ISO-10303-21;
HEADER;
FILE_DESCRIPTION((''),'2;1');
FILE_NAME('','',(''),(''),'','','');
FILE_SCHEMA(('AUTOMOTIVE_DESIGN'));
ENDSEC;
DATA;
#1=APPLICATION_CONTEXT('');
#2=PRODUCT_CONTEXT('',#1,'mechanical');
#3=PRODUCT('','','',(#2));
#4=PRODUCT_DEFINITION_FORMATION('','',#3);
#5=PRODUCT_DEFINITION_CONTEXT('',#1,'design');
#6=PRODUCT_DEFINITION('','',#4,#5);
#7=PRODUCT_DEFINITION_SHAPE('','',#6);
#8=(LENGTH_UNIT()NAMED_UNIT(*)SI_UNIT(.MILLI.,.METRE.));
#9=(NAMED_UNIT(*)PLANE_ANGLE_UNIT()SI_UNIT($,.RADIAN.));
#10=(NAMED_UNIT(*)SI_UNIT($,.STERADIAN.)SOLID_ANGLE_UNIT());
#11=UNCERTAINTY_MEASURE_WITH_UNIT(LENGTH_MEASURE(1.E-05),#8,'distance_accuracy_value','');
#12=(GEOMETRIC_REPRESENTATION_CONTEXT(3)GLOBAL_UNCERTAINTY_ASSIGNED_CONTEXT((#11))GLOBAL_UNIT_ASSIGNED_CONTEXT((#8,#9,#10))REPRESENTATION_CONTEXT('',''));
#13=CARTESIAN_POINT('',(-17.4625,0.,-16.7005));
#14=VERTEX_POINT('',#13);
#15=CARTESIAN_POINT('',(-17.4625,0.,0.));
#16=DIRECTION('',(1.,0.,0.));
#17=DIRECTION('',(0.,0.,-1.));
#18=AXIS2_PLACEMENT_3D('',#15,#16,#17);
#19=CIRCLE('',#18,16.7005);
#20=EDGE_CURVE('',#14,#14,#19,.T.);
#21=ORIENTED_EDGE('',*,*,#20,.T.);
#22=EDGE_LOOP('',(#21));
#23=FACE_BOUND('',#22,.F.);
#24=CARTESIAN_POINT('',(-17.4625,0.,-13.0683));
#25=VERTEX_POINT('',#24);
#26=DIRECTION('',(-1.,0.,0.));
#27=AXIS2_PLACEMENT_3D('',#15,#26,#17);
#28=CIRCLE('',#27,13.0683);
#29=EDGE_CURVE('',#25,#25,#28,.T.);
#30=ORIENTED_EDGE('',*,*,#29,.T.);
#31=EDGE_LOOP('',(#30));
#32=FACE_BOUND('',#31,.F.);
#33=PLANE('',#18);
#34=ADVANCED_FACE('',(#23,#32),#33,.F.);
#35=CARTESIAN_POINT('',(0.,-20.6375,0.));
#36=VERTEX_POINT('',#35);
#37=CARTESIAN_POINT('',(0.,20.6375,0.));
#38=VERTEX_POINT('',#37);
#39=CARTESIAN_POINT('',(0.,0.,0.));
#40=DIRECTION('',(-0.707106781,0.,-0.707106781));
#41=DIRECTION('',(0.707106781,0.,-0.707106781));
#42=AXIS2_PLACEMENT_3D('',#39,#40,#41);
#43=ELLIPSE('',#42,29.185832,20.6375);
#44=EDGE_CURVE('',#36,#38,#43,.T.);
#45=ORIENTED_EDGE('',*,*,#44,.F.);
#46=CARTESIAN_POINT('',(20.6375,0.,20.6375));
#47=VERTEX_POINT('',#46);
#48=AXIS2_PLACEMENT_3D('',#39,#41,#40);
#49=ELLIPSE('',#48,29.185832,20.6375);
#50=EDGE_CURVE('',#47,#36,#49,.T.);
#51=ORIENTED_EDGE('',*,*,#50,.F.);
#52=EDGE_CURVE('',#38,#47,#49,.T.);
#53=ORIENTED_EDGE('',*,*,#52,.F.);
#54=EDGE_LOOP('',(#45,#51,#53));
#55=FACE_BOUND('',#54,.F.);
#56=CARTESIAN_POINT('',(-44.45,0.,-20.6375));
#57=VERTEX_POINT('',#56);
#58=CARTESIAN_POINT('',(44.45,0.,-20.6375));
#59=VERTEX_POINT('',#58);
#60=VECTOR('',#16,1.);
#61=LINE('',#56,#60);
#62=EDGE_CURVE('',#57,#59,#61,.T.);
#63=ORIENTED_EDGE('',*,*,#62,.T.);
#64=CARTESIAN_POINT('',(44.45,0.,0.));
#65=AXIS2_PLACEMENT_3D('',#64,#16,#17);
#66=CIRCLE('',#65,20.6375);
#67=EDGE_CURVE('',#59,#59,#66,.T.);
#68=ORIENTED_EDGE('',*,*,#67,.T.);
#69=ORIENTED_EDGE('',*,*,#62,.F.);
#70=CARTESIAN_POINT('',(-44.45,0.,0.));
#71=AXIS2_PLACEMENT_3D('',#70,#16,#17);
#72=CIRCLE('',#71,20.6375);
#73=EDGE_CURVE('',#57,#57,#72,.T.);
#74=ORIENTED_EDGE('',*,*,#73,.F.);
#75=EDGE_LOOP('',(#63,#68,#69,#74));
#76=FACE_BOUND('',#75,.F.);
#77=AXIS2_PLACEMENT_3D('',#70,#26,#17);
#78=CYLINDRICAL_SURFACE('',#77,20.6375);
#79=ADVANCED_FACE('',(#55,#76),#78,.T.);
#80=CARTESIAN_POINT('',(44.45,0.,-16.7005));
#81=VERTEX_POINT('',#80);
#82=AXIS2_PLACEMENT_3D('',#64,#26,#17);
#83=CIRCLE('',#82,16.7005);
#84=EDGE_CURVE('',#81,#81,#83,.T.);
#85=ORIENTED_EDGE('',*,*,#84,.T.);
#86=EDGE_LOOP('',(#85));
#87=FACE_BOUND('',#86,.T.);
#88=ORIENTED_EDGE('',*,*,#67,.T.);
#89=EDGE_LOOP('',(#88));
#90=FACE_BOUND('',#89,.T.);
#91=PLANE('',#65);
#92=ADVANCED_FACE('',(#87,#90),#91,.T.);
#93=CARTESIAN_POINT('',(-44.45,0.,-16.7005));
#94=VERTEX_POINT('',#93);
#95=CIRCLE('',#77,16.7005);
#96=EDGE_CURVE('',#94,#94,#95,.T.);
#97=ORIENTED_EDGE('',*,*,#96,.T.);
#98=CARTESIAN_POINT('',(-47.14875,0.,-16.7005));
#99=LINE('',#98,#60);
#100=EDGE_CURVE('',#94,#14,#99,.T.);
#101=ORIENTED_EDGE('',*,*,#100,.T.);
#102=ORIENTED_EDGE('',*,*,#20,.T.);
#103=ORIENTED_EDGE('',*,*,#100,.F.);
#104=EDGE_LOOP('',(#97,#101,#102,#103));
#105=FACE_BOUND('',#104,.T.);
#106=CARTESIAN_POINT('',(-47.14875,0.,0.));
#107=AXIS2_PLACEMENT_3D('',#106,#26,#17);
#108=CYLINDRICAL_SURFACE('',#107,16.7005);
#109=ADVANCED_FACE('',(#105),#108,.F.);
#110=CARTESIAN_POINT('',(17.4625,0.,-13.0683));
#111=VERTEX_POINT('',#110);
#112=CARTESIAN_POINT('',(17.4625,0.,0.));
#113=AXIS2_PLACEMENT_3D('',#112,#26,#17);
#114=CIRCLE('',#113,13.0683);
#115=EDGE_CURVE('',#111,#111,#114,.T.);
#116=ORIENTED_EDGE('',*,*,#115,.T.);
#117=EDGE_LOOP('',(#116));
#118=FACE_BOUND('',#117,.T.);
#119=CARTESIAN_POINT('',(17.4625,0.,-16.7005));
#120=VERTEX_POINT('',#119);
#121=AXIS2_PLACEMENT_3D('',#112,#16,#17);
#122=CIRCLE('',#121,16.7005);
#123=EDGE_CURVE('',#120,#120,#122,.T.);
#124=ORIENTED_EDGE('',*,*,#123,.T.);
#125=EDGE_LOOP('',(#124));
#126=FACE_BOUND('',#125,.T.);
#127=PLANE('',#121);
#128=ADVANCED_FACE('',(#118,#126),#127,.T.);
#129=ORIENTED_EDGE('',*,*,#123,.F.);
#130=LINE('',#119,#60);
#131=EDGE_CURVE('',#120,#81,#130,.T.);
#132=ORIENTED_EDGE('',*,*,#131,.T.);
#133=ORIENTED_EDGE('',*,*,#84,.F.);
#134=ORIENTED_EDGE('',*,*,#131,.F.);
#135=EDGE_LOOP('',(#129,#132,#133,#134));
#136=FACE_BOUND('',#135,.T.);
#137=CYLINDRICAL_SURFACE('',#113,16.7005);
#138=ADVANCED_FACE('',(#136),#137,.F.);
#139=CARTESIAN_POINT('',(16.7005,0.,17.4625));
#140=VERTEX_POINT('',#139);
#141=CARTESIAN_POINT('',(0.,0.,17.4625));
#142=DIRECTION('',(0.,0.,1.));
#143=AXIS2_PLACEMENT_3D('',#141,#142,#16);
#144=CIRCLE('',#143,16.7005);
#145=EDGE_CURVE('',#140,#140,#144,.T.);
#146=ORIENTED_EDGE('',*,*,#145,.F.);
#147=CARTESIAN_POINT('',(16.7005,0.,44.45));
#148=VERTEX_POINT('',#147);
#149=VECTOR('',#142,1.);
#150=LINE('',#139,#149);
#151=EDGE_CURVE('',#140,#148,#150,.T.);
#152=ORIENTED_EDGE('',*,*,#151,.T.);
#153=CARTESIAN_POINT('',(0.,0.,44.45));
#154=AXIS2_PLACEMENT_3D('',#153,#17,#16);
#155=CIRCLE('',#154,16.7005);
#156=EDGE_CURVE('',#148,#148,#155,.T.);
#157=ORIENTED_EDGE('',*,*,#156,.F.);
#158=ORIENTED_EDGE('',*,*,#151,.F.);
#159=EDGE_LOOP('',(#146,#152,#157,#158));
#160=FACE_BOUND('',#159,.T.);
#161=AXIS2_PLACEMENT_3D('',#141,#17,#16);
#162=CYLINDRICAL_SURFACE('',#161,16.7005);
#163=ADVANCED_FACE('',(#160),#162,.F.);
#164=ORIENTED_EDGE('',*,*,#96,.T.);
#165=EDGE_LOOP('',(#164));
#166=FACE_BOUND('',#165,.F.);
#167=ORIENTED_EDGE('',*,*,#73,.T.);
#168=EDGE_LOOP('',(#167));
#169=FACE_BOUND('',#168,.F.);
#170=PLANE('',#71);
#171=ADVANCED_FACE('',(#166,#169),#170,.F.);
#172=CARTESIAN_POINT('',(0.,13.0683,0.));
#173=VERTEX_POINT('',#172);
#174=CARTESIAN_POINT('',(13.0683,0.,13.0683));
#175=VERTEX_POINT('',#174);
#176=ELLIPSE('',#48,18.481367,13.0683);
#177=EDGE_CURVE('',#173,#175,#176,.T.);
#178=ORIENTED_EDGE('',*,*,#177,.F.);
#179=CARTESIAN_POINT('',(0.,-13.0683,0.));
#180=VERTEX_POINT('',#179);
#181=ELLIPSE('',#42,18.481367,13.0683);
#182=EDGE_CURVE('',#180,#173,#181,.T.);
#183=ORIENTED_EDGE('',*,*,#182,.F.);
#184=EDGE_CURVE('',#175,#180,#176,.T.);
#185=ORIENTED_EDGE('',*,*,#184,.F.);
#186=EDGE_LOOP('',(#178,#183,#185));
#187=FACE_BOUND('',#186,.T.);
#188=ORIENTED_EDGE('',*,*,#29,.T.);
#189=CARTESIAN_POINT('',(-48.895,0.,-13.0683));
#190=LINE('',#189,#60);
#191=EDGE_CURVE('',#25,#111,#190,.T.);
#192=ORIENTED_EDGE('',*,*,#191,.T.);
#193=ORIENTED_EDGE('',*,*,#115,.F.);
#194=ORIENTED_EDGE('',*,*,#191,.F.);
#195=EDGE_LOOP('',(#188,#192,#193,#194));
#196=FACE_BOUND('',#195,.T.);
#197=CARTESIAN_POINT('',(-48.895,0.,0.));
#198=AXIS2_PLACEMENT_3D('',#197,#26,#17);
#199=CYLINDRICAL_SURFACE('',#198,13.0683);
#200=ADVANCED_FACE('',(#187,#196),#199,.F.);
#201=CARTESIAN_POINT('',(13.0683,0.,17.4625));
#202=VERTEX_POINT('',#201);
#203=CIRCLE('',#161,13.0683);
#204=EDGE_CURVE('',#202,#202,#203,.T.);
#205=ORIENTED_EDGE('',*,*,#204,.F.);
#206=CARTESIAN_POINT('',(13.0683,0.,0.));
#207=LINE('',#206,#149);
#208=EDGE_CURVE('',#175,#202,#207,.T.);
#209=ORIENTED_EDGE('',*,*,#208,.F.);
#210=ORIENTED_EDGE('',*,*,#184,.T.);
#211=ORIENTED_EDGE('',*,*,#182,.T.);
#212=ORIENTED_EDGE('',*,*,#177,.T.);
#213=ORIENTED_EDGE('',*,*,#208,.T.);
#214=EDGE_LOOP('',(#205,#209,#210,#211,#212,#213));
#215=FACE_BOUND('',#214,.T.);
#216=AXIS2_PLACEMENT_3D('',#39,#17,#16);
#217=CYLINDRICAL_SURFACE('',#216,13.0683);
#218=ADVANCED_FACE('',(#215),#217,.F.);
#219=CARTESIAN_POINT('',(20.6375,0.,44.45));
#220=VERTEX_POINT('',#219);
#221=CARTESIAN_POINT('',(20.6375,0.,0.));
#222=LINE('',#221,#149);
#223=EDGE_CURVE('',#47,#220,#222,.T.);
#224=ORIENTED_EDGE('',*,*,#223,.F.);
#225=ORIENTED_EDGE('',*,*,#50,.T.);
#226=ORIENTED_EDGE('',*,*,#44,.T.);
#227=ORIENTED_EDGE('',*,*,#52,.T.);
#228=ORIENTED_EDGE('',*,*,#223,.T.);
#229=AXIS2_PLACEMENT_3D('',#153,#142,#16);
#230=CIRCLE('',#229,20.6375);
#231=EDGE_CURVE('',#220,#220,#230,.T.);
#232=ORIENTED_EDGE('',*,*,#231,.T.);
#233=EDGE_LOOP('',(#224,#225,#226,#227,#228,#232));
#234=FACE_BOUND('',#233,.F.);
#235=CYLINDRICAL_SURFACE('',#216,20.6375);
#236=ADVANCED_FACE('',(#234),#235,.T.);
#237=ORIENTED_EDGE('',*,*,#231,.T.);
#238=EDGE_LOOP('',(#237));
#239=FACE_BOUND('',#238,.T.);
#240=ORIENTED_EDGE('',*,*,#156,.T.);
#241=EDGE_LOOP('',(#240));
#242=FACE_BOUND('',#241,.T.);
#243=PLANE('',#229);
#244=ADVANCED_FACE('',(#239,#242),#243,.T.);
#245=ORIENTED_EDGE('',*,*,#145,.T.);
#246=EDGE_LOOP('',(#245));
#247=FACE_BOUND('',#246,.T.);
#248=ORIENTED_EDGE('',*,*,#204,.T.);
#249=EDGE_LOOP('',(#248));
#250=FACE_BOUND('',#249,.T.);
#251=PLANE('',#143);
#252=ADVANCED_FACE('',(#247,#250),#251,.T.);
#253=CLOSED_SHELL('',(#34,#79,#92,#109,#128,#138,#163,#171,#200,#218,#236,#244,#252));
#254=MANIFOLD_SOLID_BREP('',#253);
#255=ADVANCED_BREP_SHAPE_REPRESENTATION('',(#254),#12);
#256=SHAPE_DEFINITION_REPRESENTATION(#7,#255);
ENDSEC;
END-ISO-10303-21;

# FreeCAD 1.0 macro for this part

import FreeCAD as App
import Part
import Sketcher
Q = App.Units.Quantity

doc = App.newDocument("Part")
body = doc.addObject("PartDesign::Body", "Body")

# Sketch on XY plane
sketch1 = doc.addObject("Sketcher::SketchObject", "Sketch")
body.addObject(sketch1)
sketch1.AttachmentSupport = (doc.XY_Plane, [""])
sketch1.MapMode = "FlatFace"
sketch1.addGeometry(Part.Circle(App.Vector(0, 0, 0), App.Vector(0, 0, 1), 16.7005), False)
sketch1.addConstraint(Sketcher.Constraint("Coincident", 0, 3, -1, 1))
sketch1.addConstraint(Sketcher.Constraint("Diameter", 0, Q("1.315 in")))
pad1 = doc.addObject("PartDesign::Pad", "Pad")
body.addObject(pad1)
pad1.Profile = sketch1
pad1.Length = 29.68625
body2 = doc.addObject("PartDesign::Body", "Body001")
doc.recompute()

body.Placement = App.Placement(App.Vector(0, 0, 0), App.Rotation(App.Vector(0, 1, 0), 90))
boolean = doc.addObject("PartDesign::Boolean", "Boolean")
body2.addObject(boolean)
boolean.Type = "Fuse"
boolean.addObjects([body])
body3 = doc.addObject("PartDesign::Body", "Body002")
doc.recompute()

body2.Placement = App.Placement(App.Vector(17.4625, 0, 0), App.Rotation(App.Vector(0, 0, 1), 0))
boolean2 = doc.addObject("PartDesign::Boolean", "Boolean001")
body3.addObject(boolean2)
boolean2.Type = "Fuse"
boolean2.addObjects([body2])
body4 = doc.addObject("PartDesign::Body", "Body003")

# Sketch on XY plane
sketch2 = doc.addObject("Sketcher::SketchObject", "Sketch001")
body4.addObject(sketch2)
sketch2.AttachmentSupport = (doc.getObject("XY_Plane003"), [""])
sketch2.MapMode = "FlatFace"
sketch2.AttachmentOffset = App.Placement(App.Vector(0, 0, 0.6875 * 25.4), App.Rotation())
sketch2.addGeometry(Part.Circle(App.Vector(0, 0, 0), App.Vector(0, 0, 1), 16.7005), False)
sketch2.addConstraint(Sketcher.Constraint("Coincident", 0, 3, -1, 1))
sketch2.addConstraint(Sketcher.Constraint("Diameter", 0, Q("1.315 in")))
pad2 = doc.addObject("PartDesign::Pad", "Pad001")
body4.addObject(pad2)
pad2.Profile = sketch2
pad2.Length = 29.68625
body5 = doc.addObject("PartDesign::Body", "Body004")

# Sketch on XY plane
sketch3 = doc.addObject("Sketcher::SketchObject", "Sketch002")
body5.addObject(sketch3)
sketch3.AttachmentSupport = (doc.getObject("XY_Plane004"), [""])
sketch3.MapMode = "FlatFace"
sketch3.addGeometry(Part.Circle(App.Vector(0, 0, 0), App.Vector(0, 0, 1), 16.7005), False)
sketch3.addConstraint(Sketcher.Constraint("Coincident", 0, 3, -1, 1))
sketch3.addConstraint(Sketcher.Constraint("Diameter", 0, Q("1.315 in")))
pad3 = doc.addObject("PartDesign::Pad", "Pad002")
body5.addObject(pad3)
pad3.Profile = sketch3
pad3.Length = 29.68625
body6 = doc.addObject("PartDesign::Body", "Body005")
doc.recompute()

body5.Placement = App.Placement(App.Vector(0, 0, 0), App.Rotation(App.Vector(0, 1, 0), 90))
boolean3 = doc.addObject("PartDesign::Boolean", "Boolean002")
body6.addObject(boolean3)
boolean3.Type = "Fuse"
boolean3.addObjects([body5])
body7 = doc.addObject("PartDesign::Body", "Body006")
body7.AllowCompound = True
doc.recompute()

body6.Placement = App.Placement(App.Vector(-47.14875, 0, 0), App.Rotation(App.Vector(0, 0, 1), 0))
boolean4 = doc.addObject("PartDesign::Boolean", "Boolean003")
body7.addObject(boolean4)
boolean4.Type = "Fuse"
boolean4.addObjects([body6])
doc.recompute()

boolean5 = doc.addObject("PartDesign::Boolean", "Boolean004")
body7.addObject(boolean5)
boolean5.Type = "Fuse"
boolean5.addObjects([body3])
doc.recompute()

boolean6 = doc.addObject("PartDesign::Boolean", "Boolean005")
body7.addObject(boolean6)
boolean6.Type = "Fuse"
boolean6.addObjects([body4])
body8 = doc.addObject("PartDesign::Body", "Body007")

# Sketch on XY plane
sketch4 = doc.addObject("Sketcher::SketchObject", "Sketch003")
body8.addObject(sketch4)
sketch4.AttachmentSupport = (doc.getObject("XY_Plane007"), [""])
sketch4.MapMode = "FlatFace"
sketch4.addGeometry(Part.Circle(App.Vector(0, 0, 0), App.Vector(0, 0, 1), 13.0683), False)
sketch4.addConstraint(Sketcher.Constraint("Coincident", 0, 3, -1, 1))
sketch4.addConstraint(Sketcher.Constraint("Diameter", 0, Q("1.029 in")))
pad4 = doc.addObject("PartDesign::Pad", "Pad003")
body8.addObject(pad4)
pad4.Profile = sketch4
pad4.Length = Q("3.85 in")
body9 = doc.addObject("PartDesign::Body", "Body008")
doc.recompute()

body8.Placement = App.Placement(App.Vector(0, 0, 0), App.Rotation(App.Vector(0, 1, 0), 90))
boolean7 = doc.addObject("PartDesign::Boolean", "Boolean006")
body9.addObject(boolean7)
boolean7.Type = "Fuse"
boolean7.addObjects([body8])
body10 = doc.addObject("PartDesign::Body", "Body009")
doc.recompute()

body9.Placement = App.Placement(App.Vector(-48.895, 0, 0), App.Rotation(App.Vector(0, 0, 1), 0))
boolean8 = doc.addObject("PartDesign::Boolean", "Boolean007")
body10.addObject(boolean8)
boolean8.Type = "Fuse"
boolean8.addObjects([body9])
body11 = doc.addObject("PartDesign::Body", "Body010")

# Sketch on XY plane
sketch5 = doc.addObject("Sketcher::SketchObject", "Sketch004")
body11.addObject(sketch5)
sketch5.AttachmentSupport = (doc.getObject("XY_Plane010"), [""])
sketch5.MapMode = "FlatFace"
sketch5.addGeometry(Part.Circle(App.Vector(0, 0, 0), App.Vector(0, 0, 1), 13.0683), False)
sketch5.addConstraint(Sketcher.Constraint("Coincident", 0, 3, -1, 1))
sketch5.addConstraint(Sketcher.Constraint("Diameter", 0, Q("1.029 in")))
pad5 = doc.addObject("PartDesign::Pad", "Pad004")
body11.addObject(pad5)
pad5.Profile = sketch5
pad5.Length = Q("1.925 in")
doc.recompute()

boolean9 = doc.addObject("PartDesign::Boolean", "Boolean008")
body11.addObject(boolean9)
boolean9.Type = "Fuse"
boolean9.addObjects([body10])
body12 = doc.addObject("PartDesign::Body", "Body011")

# Sketch on XY plane
sketch6 = doc.addObject("Sketcher::SketchObject", "Sketch005")
body12.addObject(sketch6)
sketch6.AttachmentSupport = (doc.getObject("XY_Plane011"), [""])
sketch6.MapMode = "FlatFace"
sketch6.addGeometry(Part.Circle(App.Vector(0, 0, 0), App.Vector(0, 0, 1), 20.6375), False)
sketch6.addConstraint(Sketcher.Constraint("Coincident", 0, 3, -1, 1))
sketch6.addConstraint(Sketcher.Constraint("Diameter", 0, Q("1.625 in")))
pad6 = doc.addObject("PartDesign::Pad", "Pad005")
body12.addObject(pad6)
pad6.Profile = sketch6
pad6.Length = Q("3.5 in")
body13 = doc.addObject("PartDesign::Body", "Body012")
doc.recompute()

body12.Placement = App.Placement(App.Vector(0, 0, 0), App.Rotation(App.Vector(0, 1, 0), 90))
boolean10 = doc.addObject("PartDesign::Boolean", "Boolean009")
body13.addObject(boolean10)
boolean10.Type = "Fuse"
boolean10.addObjects([body12])
body14 = doc.addObject("PartDesign::Body", "Body013")
doc.recompute()

body13.Placement = App.Placement(App.Vector(-44.45, 0, 0), App.Rotation(App.Vector(0, 0, 1), 0))
boolean11 = doc.addObject("PartDesign::Boolean", "Boolean010")
body14.addObject(boolean11)
boolean11.Type = "Fuse"
boolean11.addObjects([body13])
body15 = doc.addObject("PartDesign::Body", "Body014")

# Sketch on XY plane
sketch7 = doc.addObject("Sketcher::SketchObject", "Sketch006")
body15.addObject(sketch7)
sketch7.AttachmentSupport = (doc.getObject("XY_Plane014"), [""])
sketch7.MapMode = "FlatFace"
sketch7.addGeometry(Part.Circle(App.Vector(0, 0, 0), App.Vector(0, 0, 1), 20.6375), False)
sketch7.addConstraint(Sketcher.Constraint("Coincident", 0, 3, -1, 1))
sketch7.addConstraint(Sketcher.Constraint("Diameter", 0, Q("1.625 in")))
pad7 = doc.addObject("PartDesign::Pad", "Pad006")
body15.addObject(pad7)
pad7.Profile = sketch7
pad7.Length = Q("1.75 in")
doc.recompute()

boolean12 = doc.addObject("PartDesign::Boolean", "Boolean011")
body15.addObject(boolean12)
boolean12.Type = "Fuse"
boolean12.addObjects([body14])
doc.recompute()

boolean13 = doc.addObject("PartDesign::Boolean", "Boolean012")
body15.addObject(boolean13)
boolean13.Type = "Cut"
boolean13.addObjects([body11])
doc.recompute()

boolean14 = doc.addObject("PartDesign::Boolean", "Boolean013")
body15.addObject(boolean14)
boolean14.Type = "Cut"
boolean14.addObjects([body7])

doc.recompute()
